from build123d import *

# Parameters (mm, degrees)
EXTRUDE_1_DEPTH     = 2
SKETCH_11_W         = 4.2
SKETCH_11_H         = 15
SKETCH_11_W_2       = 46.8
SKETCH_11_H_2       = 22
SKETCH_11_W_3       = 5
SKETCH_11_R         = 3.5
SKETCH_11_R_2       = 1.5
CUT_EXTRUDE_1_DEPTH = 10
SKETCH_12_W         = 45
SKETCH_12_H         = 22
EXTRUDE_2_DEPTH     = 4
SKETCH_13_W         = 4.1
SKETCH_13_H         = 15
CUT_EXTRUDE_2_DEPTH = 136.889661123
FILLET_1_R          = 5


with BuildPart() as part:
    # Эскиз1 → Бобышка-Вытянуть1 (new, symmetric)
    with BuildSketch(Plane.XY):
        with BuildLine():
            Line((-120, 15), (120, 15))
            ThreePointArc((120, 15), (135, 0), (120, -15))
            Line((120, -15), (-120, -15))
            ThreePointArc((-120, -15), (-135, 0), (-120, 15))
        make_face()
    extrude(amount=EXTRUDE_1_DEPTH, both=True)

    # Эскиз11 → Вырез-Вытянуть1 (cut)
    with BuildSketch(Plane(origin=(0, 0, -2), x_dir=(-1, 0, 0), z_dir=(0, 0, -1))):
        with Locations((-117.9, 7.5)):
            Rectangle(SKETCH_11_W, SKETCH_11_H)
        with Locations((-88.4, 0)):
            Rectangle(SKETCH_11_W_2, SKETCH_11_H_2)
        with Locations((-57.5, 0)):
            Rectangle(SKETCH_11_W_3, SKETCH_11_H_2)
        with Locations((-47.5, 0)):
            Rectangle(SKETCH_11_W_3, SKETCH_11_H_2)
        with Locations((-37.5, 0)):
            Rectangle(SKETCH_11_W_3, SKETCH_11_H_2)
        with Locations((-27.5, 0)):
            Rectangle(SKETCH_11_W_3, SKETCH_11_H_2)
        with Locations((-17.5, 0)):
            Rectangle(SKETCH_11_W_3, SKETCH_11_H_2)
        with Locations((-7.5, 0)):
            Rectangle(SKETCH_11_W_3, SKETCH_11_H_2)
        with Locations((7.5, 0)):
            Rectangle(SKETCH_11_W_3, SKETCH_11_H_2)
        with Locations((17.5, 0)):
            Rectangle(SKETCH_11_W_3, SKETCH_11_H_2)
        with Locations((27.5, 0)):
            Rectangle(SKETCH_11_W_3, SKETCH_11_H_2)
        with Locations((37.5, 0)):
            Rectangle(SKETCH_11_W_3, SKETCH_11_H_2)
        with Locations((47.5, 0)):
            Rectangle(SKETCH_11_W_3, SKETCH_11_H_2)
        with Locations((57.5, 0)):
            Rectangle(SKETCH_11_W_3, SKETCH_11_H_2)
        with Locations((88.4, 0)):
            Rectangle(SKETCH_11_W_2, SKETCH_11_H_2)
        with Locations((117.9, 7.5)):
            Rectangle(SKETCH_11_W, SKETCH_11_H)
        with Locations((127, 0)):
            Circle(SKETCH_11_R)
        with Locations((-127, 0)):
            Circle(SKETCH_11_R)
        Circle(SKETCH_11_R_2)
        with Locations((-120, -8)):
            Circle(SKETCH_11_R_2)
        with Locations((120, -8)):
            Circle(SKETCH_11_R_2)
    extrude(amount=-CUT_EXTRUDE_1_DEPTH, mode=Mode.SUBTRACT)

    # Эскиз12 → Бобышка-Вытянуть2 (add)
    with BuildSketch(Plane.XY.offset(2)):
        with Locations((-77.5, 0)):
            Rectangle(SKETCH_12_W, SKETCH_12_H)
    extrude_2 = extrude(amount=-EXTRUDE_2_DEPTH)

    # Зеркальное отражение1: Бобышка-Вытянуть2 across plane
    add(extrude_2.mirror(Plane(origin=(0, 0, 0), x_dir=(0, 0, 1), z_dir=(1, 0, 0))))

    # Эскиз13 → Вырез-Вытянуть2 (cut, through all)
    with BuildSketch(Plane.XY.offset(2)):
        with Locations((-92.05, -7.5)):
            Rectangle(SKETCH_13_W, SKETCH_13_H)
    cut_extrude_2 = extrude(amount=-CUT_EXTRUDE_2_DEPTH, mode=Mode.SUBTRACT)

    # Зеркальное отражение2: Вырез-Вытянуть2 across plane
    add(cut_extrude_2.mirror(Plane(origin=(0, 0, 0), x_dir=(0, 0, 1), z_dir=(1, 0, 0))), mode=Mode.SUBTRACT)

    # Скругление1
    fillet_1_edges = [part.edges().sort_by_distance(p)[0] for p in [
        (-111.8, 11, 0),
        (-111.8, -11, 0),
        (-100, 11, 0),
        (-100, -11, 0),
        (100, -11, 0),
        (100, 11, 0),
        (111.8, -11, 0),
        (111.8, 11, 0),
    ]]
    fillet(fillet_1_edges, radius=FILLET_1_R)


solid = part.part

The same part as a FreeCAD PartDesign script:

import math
import FreeCAD as App
import Part
import Sketcher

V = App.Vector
Q = App.Units.Quantity


def edges_at(feature, points):
    """Names of the edges that pass closest to the given points."""
    edges = feature.Shape.Edges
    near = lambda p: min(range(len(edges)), key=lambda i: edges[i].distToShape(Part.Vertex(*p))[0])
    return sorted({f"Edge{near(p) + 1}" for p in points})


def add_polygon(sketch, points):
    """Adds a closed chain of lines whose ends are joined by coincident constraints."""
    first, n = sketch.GeometryCount, len(points)
    for a, b in zip(points, points[1:] + points[:1]):
        sketch.addGeometry(Part.LineSegment(App.Vector(*a, 0), App.Vector(*b, 0)), False)
    for i in range(n):
        sketch.addConstraint(Sketcher.Constraint("Coincident", first + i, 2, first + (i + 1) % n, 1))

doc = App.newDocument("Part")
body = doc.addObject("PartDesign::Body", "Body")

# Sketch on XY plane
sketch1 = doc.addObject("Sketcher::SketchObject", "Sketch")
body.addObject(sketch1)
sketch1.AttachmentSupport = (doc.XY_Plane, [""])
sketch1.MapMode = "FlatFace"
sketch1.addGeometry([
    Part.LineSegment(V(120, 15, 0), V(-120, 15, 0)),
    Part.ArcOfCircle(Part.Circle(V(-120, 0, 0), V(0, 0, 1), 15), math.radians(90), math.radians(270)),
    Part.LineSegment(V(-120, -15, 0), V(120, -15, 0)),
    Part.ArcOfCircle(Part.Circle(V(120, 0, 0), V(0, 0, 1), 15), math.radians(-90), math.radians(90)),
], False)
sketch1.addConstraint([
    Sketcher.Constraint("Tangent", 0, 2, 1, 1),
    Sketcher.Constraint("Tangent", 1, 2, 2, 1),
    Sketcher.Constraint("Tangent", 2, 2, 3, 1),
    Sketcher.Constraint("Tangent", 3, 2, 0, 1),
    Sketcher.Constraint("Horizontal", 0),
    Sketcher.Constraint("Horizontal", 2),
    Sketcher.Constraint("Symmetric", 1, 3, 3, 3, -1, 1),
    Sketcher.Constraint("Radius", 1, Q("15 mm")),
    Sketcher.Constraint("DistanceX", 0, 2, 0, 1, Q("240 mm")),
])
pad1 = doc.addObject("PartDesign::Pad", "Pad")
body.addObject(pad1)
pad1.Profile = sketch1
pad1.Length = 4
pad1.Midplane = True

# Sketch on XY plane
sketch2 = doc.addObject("Sketcher::SketchObject", "Sketch001")
body.addObject(sketch2)
sketch2.AttachmentSupport = (doc.XY_Plane, [""])
sketch2.MapMode = "FlatFace"
sketch2.AttachmentOffset = App.Placement(V(0, 0, -2), App.Rotation())
add_polygon(sketch2, [(120, 15), (120, 0), (115.8, 0), (115.8, 15)])  # lines 0-3
add_polygon(sketch2, [(111.8, 11), (111.8, -11), (65, -11), (65, 11)])  # lines 4-7
add_polygon(sketch2, [(60, 11), (60, -11), (55, -11), (55, 11)])  # lines 8-11
add_polygon(sketch2, [(50, 11), (50, -11), (45, -11), (45, 11)])  # lines 12-15
add_polygon(sketch2, [(40, 11), (40, -11), (35, -11), (35, 11)])  # lines 16-19
add_polygon(sketch2, [(30, 11), (30, -11), (25, -11), (25, 11)])  # lines 20-23
add_polygon(sketch2, [(20, 11), (20, -11), (15, -11), (15, 11)])  # lines 24-27
add_polygon(sketch2, [(10, 11), (10, -11), (5, -11), (5, 11)])  # lines 28-31
add_polygon(sketch2, [(-5, 11), (-5, -11), (-10, -11), (-10, 11)])  # lines 32-35
add_polygon(sketch2, [(-15, 11), (-15, -11), (-20, -11), (-20, 11)])  # lines 36-39
add_polygon(sketch2, [(-25, 11), (-25, -11), (-30, -11), (-30, 11)])  # lines 40-43
add_polygon(sketch2, [(-35, 11), (-35, -11), (-40, -11), (-40, 11)])  # lines 44-47
add_polygon(sketch2, [(-45, 11), (-45, -11), (-50, -11), (-50, 11)])  # lines 48-51
add_polygon(sketch2, [(-55, 11), (-55, -11), (-60, -11), (-60, 11)])  # lines 52-55
add_polygon(sketch2, [(-65, 11), (-65, -11), (-111.8, -11), (-111.8, 11)])  # lines 56-59
add_polygon(sketch2, [(-115.8, 15), (-115.8, 0), (-120, 0), (-120, 15)])  # lines 60-63
sketch2.addGeometry(Part.Circle(V(-127, 0, 0), V(0, 0, 1), 3.5), False)  # 64
sketch2.addGeometry(Part.Circle(V(127, 0, 0), V(0, 0, 1), 3.5), False)  # 65
sketch2.addGeometry(Part.Circle(V(0, 0, 0), V(0, 0, 1), 1.5), False)  # 66
sketch2.addGeometry(Part.Circle(V(120, -8, 0), V(0, 0, 1), 1.5), False)  # 67
sketch2.addGeometry(Part.Circle(V(-120, -8, 0), V(0, 0, 1), 1.5), False)  # 68
sketch2.addConstraint([
    Sketcher.Constraint("Vertical", 0),
    Sketcher.Constraint("Horizontal", 1),
    Sketcher.Constraint("Vertical", 2),
    Sketcher.Constraint("Horizontal", 3),
    Sketcher.Constraint("Vertical", 4),
    Sketcher.Constraint("Horizontal", 5),
    Sketcher.Constraint("Vertical", 6),
    Sketcher.Constraint("Horizontal", 7),
    Sketcher.Constraint("Vertical", 8),
    Sketcher.Constraint("Horizontal", 9),
    Sketcher.Constraint("Vertical", 10),
    Sketcher.Constraint("Horizontal", 11),
    Sketcher.Constraint("Vertical", 12),
    Sketcher.Constraint("Horizontal", 13),
    Sketcher.Constraint("Vertical", 14),
    Sketcher.Constraint("Horizontal", 15),
    Sketcher.Constraint("Vertical", 16),
    Sketcher.Constraint("Horizontal", 17),
    Sketcher.Constraint("Vertical", 18),
    Sketcher.Constraint("Horizontal", 19),
    Sketcher.Constraint("Vertical", 20),
    Sketcher.Constraint("Horizontal", 21),
    Sketcher.Constraint("Vertical", 22),
    Sketcher.Constraint("Horizontal", 23),
    Sketcher.Constraint("Vertical", 24),
    Sketcher.Constraint("Horizontal", 25),
    Sketcher.Constraint("Vertical", 26),
    Sketcher.Constraint("Horizontal", 27),
    Sketcher.Constraint("Vertical", 28),
    Sketcher.Constraint("Horizontal", 29),
    Sketcher.Constraint("Vertical", 30),
    Sketcher.Constraint("Horizontal", 31),
    Sketcher.Constraint("Vertical", 32),
    Sketcher.Constraint("Horizontal", 33),
    Sketcher.Constraint("Vertical", 34),
    Sketcher.Constraint("Horizontal", 35),
    Sketcher.Constraint("Vertical", 36),
    Sketcher.Constraint("Horizontal", 37),
    Sketcher.Constraint("Vertical", 38),
    Sketcher.Constraint("Horizontal", 39),
    Sketcher.Constraint("Vertical", 40),
    Sketcher.Constraint("Horizontal", 41),
    Sketcher.Constraint("Vertical", 42),
    Sketcher.Constraint("Horizontal", 43),
    Sketcher.Constraint("Vertical", 44),
    Sketcher.Constraint("Horizontal", 45),
    Sketcher.Constraint("Vertical", 46),
    Sketcher.Constraint("Horizontal", 47),
    Sketcher.Constraint("Vertical", 48),
    Sketcher.Constraint("Horizontal", 49),
    Sketcher.Constraint("Vertical", 50),
    Sketcher.Constraint("Horizontal", 51),
    Sketcher.Constraint("Vertical", 52),
    Sketcher.Constraint("Horizontal", 53),
    Sketcher.Constraint("Vertical", 54),
    Sketcher.Constraint("Horizontal", 55),
    Sketcher.Constraint("Vertical", 56),
    Sketcher.Constraint("Horizontal", 57),
    Sketcher.Constraint("Vertical", 58),
    Sketcher.Constraint("Horizontal", 59),
    Sketcher.Constraint("Vertical", 60),
    Sketcher.Constraint("Horizontal", 61),
    Sketcher.Constraint("Vertical", 62),
    Sketcher.Constraint("Horizontal", 63),
    Sketcher.Constraint("Coincident", 66, 3, -1, 1),
    Sketcher.Constraint("Equal", 64, 65),
    Sketcher.Constraint("Equal", 66, 67),
    Sketcher.Constraint("Equal", 67, 68),
    Sketcher.Constraint("Symmetric", 64, 3, 65, 3, -1, 1),
    Sketcher.Constraint("Symmetric", 30, 2, 32, 2, -1, 1),
    Sketcher.Constraint("Symmetric", 28, 2, 34, 2, -1, 1),
    Sketcher.Constraint("Symmetric", 26, 2, 36, 2, -1, 1),
    Sketcher.Constraint("Symmetric", 24, 2, 38, 2, -1, 1),
    Sketcher.Constraint("Symmetric", 22, 2, 40, 2, -1, 1),
    Sketcher.Constraint("Symmetric", 20, 2, 42, 2, -1, 1),
    Sketcher.Constraint("Symmetric", 18, 2, 44, 2, -1, 1),
    Sketcher.Constraint("Symmetric", 16, 2, 46, 2, -1, 1),
    Sketcher.Constraint("Symmetric", 14, 2, 48, 2, -1, 1),
    Sketcher.Constraint("Symmetric", 12, 2, 50, 2, -1, 1),
    Sketcher.Constraint("Symmetric", 10, 2, 52, 2, -1, 1),
    Sketcher.Constraint("Symmetric", 8, 2, 54, 2, -1, 1),
    Sketcher.Constraint("Symmetric", 6, 2, 56, 2, -1, 1),
    Sketcher.Constraint("Symmetric", 4, 2, 58, 2, -1, 1),
    Sketcher.Constraint("Symmetric", 1, 2, 60, 2, -1, 1),
    Sketcher.Constraint("Symmetric", 67, 3, 68, 3, -2),
    Sketcher.Constraint("Symmetric", 0, 2, 61, 2, -2),
    Sketcher.Constraint("PointOnObject", 64, 3, -1),
    Sketcher.Constraint("Horizontal", 5, 2, 8, 2),
    Sketcher.Constraint("Horizontal", 7, 2, 10, 2),
    Sketcher.Constraint("Horizontal", 9, 2, 12, 2),
    Sketcher.Constraint("Horizontal", 11, 2, 14, 2),
    Sketcher.Constraint("Horizontal", 13, 2, 16, 2),
    Sketcher.Constraint("Horizontal", 15, 2, 18, 2),
    Sketcher.Constraint("Horizontal", 17, 2, 20, 2),
    Sketcher.Constraint("Horizontal", 19, 2, 22, 2),
    Sketcher.Constraint("Horizontal", 21, 2, 24, 2),
    Sketcher.Constraint("Horizontal", 23, 2, 26, 2),
    Sketcher.Constraint("Horizontal", 25, 2, 28, 2),
    Sketcher.Constraint("Horizontal", 27, 2, 30, 2),
    Sketcher.Constraint("Horizontal", 29, 2, 32, 2),
    Sketcher.Constraint("Horizontal", 3, 2, 62, 2),
    Sketcher.Constraint("Vertical", 67, 3, 0, 2),
    Sketcher.Constraint("Equal", 11, 13),
    Sketcher.Constraint("Equal", 15, 17),
    Sketcher.Constraint("Equal", 19, 21),
    Sketcher.Constraint("Equal", 23, 25),
    Sketcher.Constraint("Equal", 27, 29),
    Sketcher.Constraint("Diameter", 64, Q("7 mm")),
    Sketcher.Constraint("Diameter", 66, Q("3 mm")),
    Sketcher.Constraint("DistanceX", 9, 2, 9, 1, Q("5 mm")),
    Sketcher.Constraint("DistanceY", 0, 2, 0, 1, Q("15 mm")),
    Sketcher.Constraint("DistanceY", 4, 2, 4, 1, Q("22 mm")),
    Sketcher.Constraint("DistanceX", 1, 2, 1, 1, Q("4.2 mm")),
    Sketcher.Constraint("DistanceX", 5, 2, 5, 1, Q("46.8 mm")),
    Sketcher.Constraint("DistanceX", 64, 3, -1, 1, Q("127 mm")),
    Sketcher.Constraint("DistanceX", -1, 1, 67, 3, Q("120 mm")),
    Sketcher.Constraint("DistanceY", 67, 3, -1, 1, Q("8 mm")),
    Sketcher.Constraint("DistanceX", -1, 1, 5, 2, Q("65 mm")),
    Sketcher.Constraint("DistanceX", -1, 1, 8, 2, Q("60 mm")),
    Sketcher.Constraint("DistanceX", -1, 1, 12, 2, Q("50 mm")),
    Sketcher.Constraint("DistanceX", -1, 1, 16, 2, Q("40 mm")),
    Sketcher.Constraint("DistanceX", -1, 1, 20, 2, Q("30 mm")),
    Sketcher.Constraint("DistanceX", -1, 1, 24, 2, Q("20 mm")),
    Sketcher.Constraint("DistanceX", -1, 1, 28, 2, Q("10 mm")),
])
pocket1 = doc.addObject("PartDesign::Pocket", "Pocket")
body.addObject(pocket1)
pocket1.Profile = sketch2
pocket1.Length = 10
pocket1.Reversed = True

# Sketch on XY plane
sketch3 = doc.addObject("Sketcher::SketchObject", "Sketch002")
body.addObject(sketch3)
sketch3.AttachmentSupport = (doc.XY_Plane, [""])
sketch3.MapMode = "FlatFace"
sketch3.AttachmentOffset = App.Placement(V(0, 0, 2), App.Rotation())
add_polygon(sketch3, [(-100, 11), (-100, -11), (-55, -11), (-55, 11)])  # lines 0-3
sketch3.addConstraint([
    Sketcher.Constraint("Vertical", 0),
    Sketcher.Constraint("Horizontal", 1),
    Sketcher.Constraint("Vertical", 2),
    Sketcher.Constraint("Horizontal", 3),
    Sketcher.Constraint("DistanceX", 1, 1, 1, 2, Q("45 mm")),
    Sketcher.Constraint("DistanceY", 0, 2, 0, 1, Q("22 mm")),
    Sketcher.Constraint("DistanceX", 0, 2, -1, 1, Q("100 mm")),
    Sketcher.Constraint("DistanceY", 0, 2, -1, 1, Q("11 mm")),
])
pad2 = doc.addObject("PartDesign::Pad", "Pad001")
body.addObject(pad2)
pad2.Profile = sketch3
pad2.Length = 4
pad2.Reversed = True
doc.recompute()

mirrored = doc.addObject("PartDesign::Mirrored", "Mirrored")
body.addObject(mirrored)
mirrored.Originals = [pad2]
mirrored.MirrorPlane = (doc.YZ_Plane, [""])
body.Tip = mirrored

# Sketch on XY plane
sketch4 = doc.addObject("Sketcher::SketchObject", "Sketch003")
body.addObject(sketch4)
sketch4.AttachmentSupport = (doc.XY_Plane, [""])
sketch4.MapMode = "FlatFace"
sketch4.AttachmentOffset = App.Placement(V(0, 0, 2), App.Rotation())
add_polygon(sketch4, [(-94.1, 0), (-94.1, -15), (-90, -15), (-90, 0)])  # lines 0-3
sketch4.addConstraint([
    Sketcher.Constraint("Vertical", 0),
    Sketcher.Constraint("Horizontal", 1),
    Sketcher.Constraint("Vertical", 2),
    Sketcher.Constraint("Horizontal", 3),
    Sketcher.Constraint("PointOnObject", 2, 2, -1),
    Sketcher.Constraint("DistanceY", 0, 2, 0, 1, Q("15 mm")),
    Sketcher.Constraint("DistanceX", 1, 1, 1, 2, Q("4.1 mm")),
    Sketcher.Constraint("DistanceX", 1, 2, -1, 1, Q("90 mm")),
])
pocket2 = doc.addObject("PartDesign::Pocket", "Pocket001")
body.addObject(pocket2)
pocket2.Profile = sketch4
pocket2.Type = "ThroughAll"
doc.recompute()

mirrored2 = doc.addObject("PartDesign::Mirrored", "Mirrored001")
body.addObject(mirrored2)
mirrored2.Originals = [pocket2]
mirrored2.MirrorPlane = (doc.YZ_Plane, [""])
body.Tip = mirrored2
doc.recompute()

fillet = doc.addObject("PartDesign::Fillet", "Fillet")
body.addObject(fillet)
fillet.Base = (mirrored2, edges_at(mirrored2, [
    (-111.8, 11, 0),
    (-111.8, -11, 0),
    (-100, 11, 0),
    (-100, -11, 0),
    (100, -11, 0),
    (100, 11, 0),
    (111.8, -11, 0),
    (111.8, 11, 0),
]))
fillet.Radius = 5

doc.recompute()
